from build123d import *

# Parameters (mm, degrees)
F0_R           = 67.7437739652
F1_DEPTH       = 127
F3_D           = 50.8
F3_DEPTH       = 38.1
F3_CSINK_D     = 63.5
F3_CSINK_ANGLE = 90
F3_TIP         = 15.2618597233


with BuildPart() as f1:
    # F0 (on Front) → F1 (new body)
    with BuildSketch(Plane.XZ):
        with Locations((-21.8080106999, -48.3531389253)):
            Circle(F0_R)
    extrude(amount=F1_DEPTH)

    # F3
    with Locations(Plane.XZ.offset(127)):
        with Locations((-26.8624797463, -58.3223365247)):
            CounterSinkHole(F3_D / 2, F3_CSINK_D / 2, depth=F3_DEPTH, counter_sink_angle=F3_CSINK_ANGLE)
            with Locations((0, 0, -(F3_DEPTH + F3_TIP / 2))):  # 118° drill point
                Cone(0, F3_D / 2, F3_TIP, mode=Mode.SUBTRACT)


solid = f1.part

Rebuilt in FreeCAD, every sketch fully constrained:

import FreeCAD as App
import Part
import Sketcher
Q = App.Units.Quantity

doc = App.newDocument("Part")
body = doc.addObject("PartDesign::Body", "Body")

sketch1 = body.newObject("Sketcher::SketchObject", "Sketch")
sketch1.AttachmentSupport = (doc.getObject("XZ_Plane"), [""])
sketch1.MapMode = "FlatFace"
sketch1.addGeometry(Part.Circle(App.Vector(-22, -48, 0), App.Vector(0, 0, 1), 68), False)
sketch1.addConstraint(Sketcher.Constraint("Diameter", 0, 135.487548))
sketch1.addConstraint(Sketcher.Constraint("DistanceX", 0, 3, -1, 1, 21.808011))
sketch1.addConstraint(Sketcher.Constraint("DistanceY", 0, 3, -1, 1, 48.353139))
pad1 = body.newObject("PartDesign::Pad", "Pad")
pad1.Profile = sketch1
pad1.Length = Q("5 in")

sketch2 = body.newObject("Sketcher::SketchObject", "Sketch001")
sketch2.AttachmentSupport = (doc.getObject("XZ_Plane"), [""])
sketch2.MapMode = "FlatFace"
sketch2.AttachmentOffset = App.Placement(App.Vector(0, 0, 5 * 25.4), App.Rotation())
sketch2.addGeometry(Part.Circle(App.Vector(-27, -58, 0), App.Vector(0, 0, 1), 25), False)
sketch2.addConstraint(Sketcher.Constraint("Diameter", 0, Q("2 in")))
sketch2.addConstraint(Sketcher.Constraint("DistanceX", 0, 3, -1, 1, 26.86248))
sketch2.addConstraint(Sketcher.Constraint("DistanceY", 0, 3, -1, 1, 58.322337))
doc.recompute()
hole = body.newObject("PartDesign::Hole", "Hole")
hole.Profile = sketch2
hole.ThreadType = "None"
hole.Diameter = Q("2 in")
hole.DepthType = "Dimension"
hole.Depth = Q("1.5 in")
hole.DrillPoint = "Angled"
hole.DrillPointAngle = 118
hole.HoleCutType = "Countersink"
hole.HoleCutDiameter = Q("2.5 in")
hole.HoleCutCountersinkAngle = 90

doc.recompute()
